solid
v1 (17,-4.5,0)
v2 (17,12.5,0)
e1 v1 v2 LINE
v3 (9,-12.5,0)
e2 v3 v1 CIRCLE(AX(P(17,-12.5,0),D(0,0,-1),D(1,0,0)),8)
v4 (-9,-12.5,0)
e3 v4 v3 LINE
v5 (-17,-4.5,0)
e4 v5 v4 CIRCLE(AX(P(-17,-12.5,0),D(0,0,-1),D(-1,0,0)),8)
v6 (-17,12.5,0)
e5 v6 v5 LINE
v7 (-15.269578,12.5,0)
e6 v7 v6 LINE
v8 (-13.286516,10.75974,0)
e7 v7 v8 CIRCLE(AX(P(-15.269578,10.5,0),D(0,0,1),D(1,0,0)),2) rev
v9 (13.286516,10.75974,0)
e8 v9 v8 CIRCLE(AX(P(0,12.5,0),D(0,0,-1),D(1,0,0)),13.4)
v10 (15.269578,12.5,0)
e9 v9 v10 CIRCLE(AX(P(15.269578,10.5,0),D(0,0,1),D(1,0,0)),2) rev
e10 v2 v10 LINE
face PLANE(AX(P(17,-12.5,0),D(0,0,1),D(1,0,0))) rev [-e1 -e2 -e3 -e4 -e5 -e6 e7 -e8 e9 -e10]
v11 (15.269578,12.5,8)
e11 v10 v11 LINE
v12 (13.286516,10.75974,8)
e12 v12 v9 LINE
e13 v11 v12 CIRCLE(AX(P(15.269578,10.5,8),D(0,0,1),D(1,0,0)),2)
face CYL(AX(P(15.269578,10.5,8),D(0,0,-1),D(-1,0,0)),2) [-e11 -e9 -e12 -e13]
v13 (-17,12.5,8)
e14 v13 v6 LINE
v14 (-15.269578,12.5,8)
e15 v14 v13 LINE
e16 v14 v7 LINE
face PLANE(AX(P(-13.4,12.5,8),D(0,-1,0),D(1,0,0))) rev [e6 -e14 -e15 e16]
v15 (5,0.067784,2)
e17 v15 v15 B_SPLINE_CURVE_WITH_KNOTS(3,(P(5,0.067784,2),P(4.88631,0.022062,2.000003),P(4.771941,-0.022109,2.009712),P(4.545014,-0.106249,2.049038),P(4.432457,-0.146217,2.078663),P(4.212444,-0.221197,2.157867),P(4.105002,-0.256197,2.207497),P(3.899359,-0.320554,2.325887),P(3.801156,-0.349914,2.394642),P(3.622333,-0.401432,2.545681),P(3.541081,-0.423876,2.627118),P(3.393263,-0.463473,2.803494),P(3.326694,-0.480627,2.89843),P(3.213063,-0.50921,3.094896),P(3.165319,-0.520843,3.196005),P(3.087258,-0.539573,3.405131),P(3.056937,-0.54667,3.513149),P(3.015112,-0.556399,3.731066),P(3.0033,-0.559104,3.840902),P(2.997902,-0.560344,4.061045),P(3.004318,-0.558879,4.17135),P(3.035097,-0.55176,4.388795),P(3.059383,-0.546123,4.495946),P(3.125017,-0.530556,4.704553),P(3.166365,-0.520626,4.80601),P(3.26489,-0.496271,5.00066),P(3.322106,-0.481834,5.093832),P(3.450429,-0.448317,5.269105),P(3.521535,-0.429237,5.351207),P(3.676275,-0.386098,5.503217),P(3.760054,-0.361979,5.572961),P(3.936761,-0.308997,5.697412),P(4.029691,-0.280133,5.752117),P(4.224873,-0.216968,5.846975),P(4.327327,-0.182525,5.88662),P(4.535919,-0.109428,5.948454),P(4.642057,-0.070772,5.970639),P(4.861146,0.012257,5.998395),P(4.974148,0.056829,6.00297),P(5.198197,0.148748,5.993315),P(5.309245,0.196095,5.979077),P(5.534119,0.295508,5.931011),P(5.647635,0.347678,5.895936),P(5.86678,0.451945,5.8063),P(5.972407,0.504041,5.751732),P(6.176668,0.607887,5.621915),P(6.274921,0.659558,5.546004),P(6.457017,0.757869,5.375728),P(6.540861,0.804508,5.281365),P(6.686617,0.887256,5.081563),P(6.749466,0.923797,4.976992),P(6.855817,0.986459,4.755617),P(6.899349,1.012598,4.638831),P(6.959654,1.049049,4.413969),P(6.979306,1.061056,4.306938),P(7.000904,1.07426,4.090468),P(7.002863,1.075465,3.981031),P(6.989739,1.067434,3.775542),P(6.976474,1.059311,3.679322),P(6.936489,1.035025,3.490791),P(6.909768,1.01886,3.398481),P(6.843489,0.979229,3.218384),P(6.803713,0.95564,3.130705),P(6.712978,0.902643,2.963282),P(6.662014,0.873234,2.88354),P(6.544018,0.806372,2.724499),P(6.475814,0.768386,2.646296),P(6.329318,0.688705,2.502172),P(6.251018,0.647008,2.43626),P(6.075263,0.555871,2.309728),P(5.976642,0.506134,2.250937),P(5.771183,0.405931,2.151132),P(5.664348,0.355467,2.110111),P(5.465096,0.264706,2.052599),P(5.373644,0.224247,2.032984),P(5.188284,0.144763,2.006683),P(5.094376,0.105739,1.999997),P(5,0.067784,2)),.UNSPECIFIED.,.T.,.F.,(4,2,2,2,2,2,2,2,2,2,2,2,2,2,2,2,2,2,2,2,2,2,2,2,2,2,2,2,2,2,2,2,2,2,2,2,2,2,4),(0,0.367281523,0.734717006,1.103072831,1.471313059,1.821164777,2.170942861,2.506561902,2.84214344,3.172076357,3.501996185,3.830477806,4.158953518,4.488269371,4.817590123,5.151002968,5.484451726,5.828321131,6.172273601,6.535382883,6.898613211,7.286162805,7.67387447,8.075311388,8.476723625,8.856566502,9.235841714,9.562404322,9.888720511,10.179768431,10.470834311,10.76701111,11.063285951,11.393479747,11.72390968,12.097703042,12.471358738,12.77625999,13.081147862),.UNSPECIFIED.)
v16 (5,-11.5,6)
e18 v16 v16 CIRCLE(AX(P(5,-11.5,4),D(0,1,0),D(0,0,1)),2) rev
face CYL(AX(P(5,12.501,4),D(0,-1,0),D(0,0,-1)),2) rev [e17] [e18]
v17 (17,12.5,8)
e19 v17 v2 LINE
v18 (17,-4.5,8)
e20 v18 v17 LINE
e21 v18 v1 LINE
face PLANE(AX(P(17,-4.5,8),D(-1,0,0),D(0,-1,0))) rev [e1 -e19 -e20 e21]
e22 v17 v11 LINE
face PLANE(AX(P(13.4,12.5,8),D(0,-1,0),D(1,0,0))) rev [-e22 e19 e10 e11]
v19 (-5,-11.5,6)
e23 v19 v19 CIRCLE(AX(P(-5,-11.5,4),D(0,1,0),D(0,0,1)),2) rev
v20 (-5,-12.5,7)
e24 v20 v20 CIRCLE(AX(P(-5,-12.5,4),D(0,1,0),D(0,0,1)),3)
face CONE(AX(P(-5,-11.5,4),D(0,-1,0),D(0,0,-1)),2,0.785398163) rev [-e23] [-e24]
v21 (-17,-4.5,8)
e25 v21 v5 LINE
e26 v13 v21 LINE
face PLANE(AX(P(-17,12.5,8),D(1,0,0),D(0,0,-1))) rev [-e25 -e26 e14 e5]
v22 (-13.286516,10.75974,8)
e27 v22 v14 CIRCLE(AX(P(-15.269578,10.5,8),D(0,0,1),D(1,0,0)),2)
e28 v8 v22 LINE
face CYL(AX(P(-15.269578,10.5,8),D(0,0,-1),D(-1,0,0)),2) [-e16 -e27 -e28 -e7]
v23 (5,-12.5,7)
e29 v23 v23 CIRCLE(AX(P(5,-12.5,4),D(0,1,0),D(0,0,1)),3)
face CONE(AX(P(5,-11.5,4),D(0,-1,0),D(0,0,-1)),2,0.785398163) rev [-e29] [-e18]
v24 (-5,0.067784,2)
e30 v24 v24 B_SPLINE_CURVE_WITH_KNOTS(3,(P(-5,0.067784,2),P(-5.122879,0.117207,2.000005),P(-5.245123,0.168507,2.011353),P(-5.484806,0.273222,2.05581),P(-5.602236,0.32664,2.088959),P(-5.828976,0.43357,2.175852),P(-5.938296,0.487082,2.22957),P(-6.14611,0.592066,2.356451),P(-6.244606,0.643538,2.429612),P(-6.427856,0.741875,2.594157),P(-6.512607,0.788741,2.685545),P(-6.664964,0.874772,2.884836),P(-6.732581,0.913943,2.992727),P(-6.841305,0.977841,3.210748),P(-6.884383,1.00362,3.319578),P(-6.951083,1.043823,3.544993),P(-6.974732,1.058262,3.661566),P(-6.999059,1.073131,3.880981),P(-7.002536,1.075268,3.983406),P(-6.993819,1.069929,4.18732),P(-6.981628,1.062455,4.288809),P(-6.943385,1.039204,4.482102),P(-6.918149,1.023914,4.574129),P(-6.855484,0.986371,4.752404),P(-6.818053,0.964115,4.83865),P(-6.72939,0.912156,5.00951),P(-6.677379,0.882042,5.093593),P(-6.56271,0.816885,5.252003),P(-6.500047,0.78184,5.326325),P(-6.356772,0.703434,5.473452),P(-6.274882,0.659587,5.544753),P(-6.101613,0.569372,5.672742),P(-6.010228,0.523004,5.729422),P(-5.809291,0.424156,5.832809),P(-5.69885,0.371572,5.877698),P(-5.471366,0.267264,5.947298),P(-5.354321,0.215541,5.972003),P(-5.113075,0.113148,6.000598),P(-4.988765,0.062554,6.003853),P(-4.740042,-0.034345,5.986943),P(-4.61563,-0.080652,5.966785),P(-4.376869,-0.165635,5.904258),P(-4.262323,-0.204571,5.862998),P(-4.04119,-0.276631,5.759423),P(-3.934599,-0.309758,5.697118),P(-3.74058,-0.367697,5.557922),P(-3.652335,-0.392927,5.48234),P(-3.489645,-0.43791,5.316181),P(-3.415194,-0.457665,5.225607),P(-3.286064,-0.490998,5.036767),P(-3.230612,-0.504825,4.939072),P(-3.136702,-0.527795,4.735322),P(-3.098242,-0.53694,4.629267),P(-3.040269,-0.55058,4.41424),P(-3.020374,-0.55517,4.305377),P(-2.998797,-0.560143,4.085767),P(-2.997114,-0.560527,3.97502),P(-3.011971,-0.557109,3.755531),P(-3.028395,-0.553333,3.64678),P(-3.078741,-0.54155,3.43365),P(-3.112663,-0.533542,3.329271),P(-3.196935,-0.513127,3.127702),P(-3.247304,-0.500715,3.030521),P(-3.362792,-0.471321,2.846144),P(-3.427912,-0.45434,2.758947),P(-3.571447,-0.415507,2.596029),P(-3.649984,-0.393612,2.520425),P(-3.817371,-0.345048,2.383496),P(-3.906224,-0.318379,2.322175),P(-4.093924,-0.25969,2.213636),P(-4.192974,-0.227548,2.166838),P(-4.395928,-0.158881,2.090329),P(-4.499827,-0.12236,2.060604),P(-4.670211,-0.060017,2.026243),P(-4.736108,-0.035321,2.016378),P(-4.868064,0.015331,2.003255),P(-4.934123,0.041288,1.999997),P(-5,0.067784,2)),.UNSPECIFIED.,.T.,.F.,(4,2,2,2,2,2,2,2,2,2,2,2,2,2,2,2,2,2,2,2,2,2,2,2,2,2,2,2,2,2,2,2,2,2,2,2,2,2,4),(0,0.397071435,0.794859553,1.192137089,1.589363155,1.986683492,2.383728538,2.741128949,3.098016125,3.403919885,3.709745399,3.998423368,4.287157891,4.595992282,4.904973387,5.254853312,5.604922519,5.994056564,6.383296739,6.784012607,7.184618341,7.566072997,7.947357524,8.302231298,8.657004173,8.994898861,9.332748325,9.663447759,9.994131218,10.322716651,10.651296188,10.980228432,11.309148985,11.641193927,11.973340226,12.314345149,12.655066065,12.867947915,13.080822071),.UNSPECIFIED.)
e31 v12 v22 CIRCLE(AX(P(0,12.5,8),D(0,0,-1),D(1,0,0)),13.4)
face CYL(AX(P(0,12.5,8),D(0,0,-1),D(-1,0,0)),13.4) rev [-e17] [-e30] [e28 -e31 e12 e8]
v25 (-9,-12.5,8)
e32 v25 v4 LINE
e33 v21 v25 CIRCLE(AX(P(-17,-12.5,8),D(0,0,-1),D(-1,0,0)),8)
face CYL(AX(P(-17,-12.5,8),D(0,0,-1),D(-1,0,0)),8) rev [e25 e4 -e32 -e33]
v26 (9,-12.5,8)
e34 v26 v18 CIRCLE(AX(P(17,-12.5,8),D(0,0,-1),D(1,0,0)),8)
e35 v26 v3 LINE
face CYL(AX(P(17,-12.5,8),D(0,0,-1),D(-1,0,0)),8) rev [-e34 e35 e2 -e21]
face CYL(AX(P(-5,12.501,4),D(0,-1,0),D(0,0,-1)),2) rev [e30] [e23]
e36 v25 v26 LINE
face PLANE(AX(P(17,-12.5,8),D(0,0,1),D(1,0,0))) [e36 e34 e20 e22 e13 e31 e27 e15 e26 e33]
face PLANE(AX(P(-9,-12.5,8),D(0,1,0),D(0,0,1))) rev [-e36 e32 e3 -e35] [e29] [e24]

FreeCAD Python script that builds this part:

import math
import FreeCAD as App
import Part
import Sketcher


def edges_at(feature, points):
    """Names of the edges that pass closest to the given points."""
    edges = feature.Shape.Edges
    near = lambda p: min(range(len(edges)), key=lambda i: edges[i].distToShape(Part.Vertex(*p))[0])
    return sorted({f"Edge{near(p) + 1}" for p in points})

doc = App.newDocument("Part")
body = doc.addObject("PartDesign::Body", "Body")

sketch1 = body.newObject("Sketcher::SketchObject", "Sketch")
sketch1.AttachmentSupport = (doc.getObject("XY_Plane"), [""])
sketch1.MapMode = "FlatFace"
sketch1.addGeometry(Part.LineSegment(App.Vector(-17, 12.5, 0), App.Vector(-17, -4.5, 0)), False)
sketch1.addGeometry(Part.ArcOfCircle(Part.Circle(App.Vector(-17, -12.5, 0), App.Vector(0, 0, 1), 8), math.radians(0), math.radians(90)), False)
sketch1.addGeometry(Part.LineSegment(App.Vector(-9, -12.5, 0), App.Vector(9, -12.5, 0)), False)
sketch1.addGeometry(Part.ArcOfCircle(Part.Circle(App.Vector(17, -12.5, 0), App.Vector(0, 0, 1), 8), math.radians(90), math.radians(180)), False)
sketch1.addGeometry(Part.LineSegment(App.Vector(17, -4.5, 0), App.Vector(17, 12.5, 0)), False)
sketch1.addGeometry(Part.LineSegment(App.Vector(17, 12.5, 0), App.Vector(13.4, 12.5, 0)), False)
sketch1.addGeometry(Part.ArcOfCircle(Part.Circle(App.Vector(0, 12.5, 0), App.Vector(0, 0, 1), 13.4), math.radians(180), math.radians(360)), False)
sketch1.addGeometry(Part.LineSegment(App.Vector(-13.4, 12.5, 0), App.Vector(-17, 12.5, 0)), False)
sketch1.addConstraint(Sketcher.Constraint("Coincident", 0, 2, 1, 2))
sketch1.addConstraint(Sketcher.Constraint("Coincident", 1, 1, 2, 1))
sketch1.addConstraint(Sketcher.Constraint("Coincident", 2, 2, 3, 2))
sketch1.addConstraint(Sketcher.Constraint("Coincident", 3, 1, 4, 1))
sketch1.addConstraint(Sketcher.Constraint("Coincident", 4, 2, 5, 1))
sketch1.addConstraint(Sketcher.Constraint("Coincident", 5, 2, 6, 2))
sketch1.addConstraint(Sketcher.Constraint("Coincident", 6, 1, 7, 1))
sketch1.addConstraint(Sketcher.Constraint("Coincident", 7, 2, 0, 1))
sketch1.addConstraint(Sketcher.Constraint("Vertical", 0))
sketch1.addConstraint(Sketcher.Constraint("Horizontal", 2))
sketch1.addConstraint(Sketcher.Constraint("Vertical", 4))
sketch1.addConstraint(Sketcher.Constraint("Horizontal", 5))
sketch1.addConstraint(Sketcher.Constraint("Horizontal", 7))
sketch1.addConstraint(Sketcher.Constraint("Equal", 1, 3))
sketch1.addConstraint(Sketcher.Constraint("Symmetric", 1, 3, 3, 3, -2))
sketch1.addConstraint(Sketcher.Constraint("Symmetric", 5, 2, 6, 1, -2))
sketch1.addConstraint(Sketcher.Constraint("Horizontal", 3, 3, 1, 1))
sketch1.addConstraint(Sketcher.Constraint("Horizontal", 6, 3, 4, 2))
sketch1.addConstraint(Sketcher.Constraint("Vertical", 1, 3, 0, 2))
sketch1.addConstraint(Sketcher.Constraint("Equal", 5, 7))
sketch1.addConstraint(Sketcher.Constraint("Radius", 1, 8.0))
sketch1.addConstraint(Sketcher.Constraint("Radius", 6, 13.4))
sketch1.addConstraint(Sketcher.Constraint("DistanceX", 2, 1, 2, 2, 18.0))
sketch1.addConstraint(Sketcher.Constraint("DistanceY", 0, 2, 0, 1, 17.0))
sketch1.addConstraint(Sketcher.Constraint("DistanceY", 1, 3, -1, 1, 12.5))
pad1 = body.newObject("PartDesign::Pad", "Pad")
pad1.Profile = sketch1
pad1.Length = 8

sketch2 = body.newObject("Sketcher::SketchObject", "Sketch001")
sketch2.AttachmentSupport = (doc.getObject("XZ_Plane"), [""])
sketch2.MapMode = "FlatFace"
sketch2.AttachmentOffset = App.Placement(App.Vector(0, 0, 12.5), App.Rotation())
sketch2.addGeometry(Part.Circle(App.Vector(-5, 4, 0), App.Vector(0, 0, 1), 2), False)
sketch2.addConstraint(Sketcher.Constraint("Diameter", 0, 4.0))
sketch2.addConstraint(Sketcher.Constraint("DistanceX", 0, 3, -1, 1, 5.0))
sketch2.addConstraint(Sketcher.Constraint("DistanceY", -1, 1, 0, 3, 4.0))
pocket1 = body.newObject("PartDesign::Pocket", "Pocket")
pocket1.Profile = sketch2
pocket1.Type = "UpToFirst"

sketch3 = body.newObject("Sketcher::SketchObject", "Sketch002")
sketch3.AttachmentSupport = (doc.getObject("XZ_Plane"), [""])
sketch3.MapMode = "FlatFace"
sketch3.AttachmentOffset = App.Placement(App.Vector(0, 0, 12.5), App.Rotation())
sketch3.addGeometry(Part.Circle(App.Vector(5, 4, 0), App.Vector(0, 0, 1), 2), False)
sketch3.addConstraint(Sketcher.Constraint("Diameter", 0, 4.0))
sketch3.addConstraint(Sketcher.Constraint("DistanceX", -1, 1, 0, 3, 5.0))
sketch3.addConstraint(Sketcher.Constraint("DistanceY", -1, 1, 0, 3, 4.0))
pocket2 = body.newObject("PartDesign::Pocket", "Pocket001")
pocket2.Profile = sketch3
pocket2.Type = "UpToFirst"
doc.recompute()

chamfer = body.newObject("PartDesign::Chamfer", "Chamfer")
chamfer.Base = (pocket2, edges_at(pocket2, [(-7, -12.5, 4), (3, -12.5, 4)]))
chamfer.Size = 1
doc.recompute()

fillet = body.newObject("PartDesign::Fillet", "Fillet")
fillet.Base = (chamfer, edges_at(chamfer, [(-13.4, 12.5, 4), (13.4, 12.5, 4)]))
fillet.Radius = 2

doc.recompute()
